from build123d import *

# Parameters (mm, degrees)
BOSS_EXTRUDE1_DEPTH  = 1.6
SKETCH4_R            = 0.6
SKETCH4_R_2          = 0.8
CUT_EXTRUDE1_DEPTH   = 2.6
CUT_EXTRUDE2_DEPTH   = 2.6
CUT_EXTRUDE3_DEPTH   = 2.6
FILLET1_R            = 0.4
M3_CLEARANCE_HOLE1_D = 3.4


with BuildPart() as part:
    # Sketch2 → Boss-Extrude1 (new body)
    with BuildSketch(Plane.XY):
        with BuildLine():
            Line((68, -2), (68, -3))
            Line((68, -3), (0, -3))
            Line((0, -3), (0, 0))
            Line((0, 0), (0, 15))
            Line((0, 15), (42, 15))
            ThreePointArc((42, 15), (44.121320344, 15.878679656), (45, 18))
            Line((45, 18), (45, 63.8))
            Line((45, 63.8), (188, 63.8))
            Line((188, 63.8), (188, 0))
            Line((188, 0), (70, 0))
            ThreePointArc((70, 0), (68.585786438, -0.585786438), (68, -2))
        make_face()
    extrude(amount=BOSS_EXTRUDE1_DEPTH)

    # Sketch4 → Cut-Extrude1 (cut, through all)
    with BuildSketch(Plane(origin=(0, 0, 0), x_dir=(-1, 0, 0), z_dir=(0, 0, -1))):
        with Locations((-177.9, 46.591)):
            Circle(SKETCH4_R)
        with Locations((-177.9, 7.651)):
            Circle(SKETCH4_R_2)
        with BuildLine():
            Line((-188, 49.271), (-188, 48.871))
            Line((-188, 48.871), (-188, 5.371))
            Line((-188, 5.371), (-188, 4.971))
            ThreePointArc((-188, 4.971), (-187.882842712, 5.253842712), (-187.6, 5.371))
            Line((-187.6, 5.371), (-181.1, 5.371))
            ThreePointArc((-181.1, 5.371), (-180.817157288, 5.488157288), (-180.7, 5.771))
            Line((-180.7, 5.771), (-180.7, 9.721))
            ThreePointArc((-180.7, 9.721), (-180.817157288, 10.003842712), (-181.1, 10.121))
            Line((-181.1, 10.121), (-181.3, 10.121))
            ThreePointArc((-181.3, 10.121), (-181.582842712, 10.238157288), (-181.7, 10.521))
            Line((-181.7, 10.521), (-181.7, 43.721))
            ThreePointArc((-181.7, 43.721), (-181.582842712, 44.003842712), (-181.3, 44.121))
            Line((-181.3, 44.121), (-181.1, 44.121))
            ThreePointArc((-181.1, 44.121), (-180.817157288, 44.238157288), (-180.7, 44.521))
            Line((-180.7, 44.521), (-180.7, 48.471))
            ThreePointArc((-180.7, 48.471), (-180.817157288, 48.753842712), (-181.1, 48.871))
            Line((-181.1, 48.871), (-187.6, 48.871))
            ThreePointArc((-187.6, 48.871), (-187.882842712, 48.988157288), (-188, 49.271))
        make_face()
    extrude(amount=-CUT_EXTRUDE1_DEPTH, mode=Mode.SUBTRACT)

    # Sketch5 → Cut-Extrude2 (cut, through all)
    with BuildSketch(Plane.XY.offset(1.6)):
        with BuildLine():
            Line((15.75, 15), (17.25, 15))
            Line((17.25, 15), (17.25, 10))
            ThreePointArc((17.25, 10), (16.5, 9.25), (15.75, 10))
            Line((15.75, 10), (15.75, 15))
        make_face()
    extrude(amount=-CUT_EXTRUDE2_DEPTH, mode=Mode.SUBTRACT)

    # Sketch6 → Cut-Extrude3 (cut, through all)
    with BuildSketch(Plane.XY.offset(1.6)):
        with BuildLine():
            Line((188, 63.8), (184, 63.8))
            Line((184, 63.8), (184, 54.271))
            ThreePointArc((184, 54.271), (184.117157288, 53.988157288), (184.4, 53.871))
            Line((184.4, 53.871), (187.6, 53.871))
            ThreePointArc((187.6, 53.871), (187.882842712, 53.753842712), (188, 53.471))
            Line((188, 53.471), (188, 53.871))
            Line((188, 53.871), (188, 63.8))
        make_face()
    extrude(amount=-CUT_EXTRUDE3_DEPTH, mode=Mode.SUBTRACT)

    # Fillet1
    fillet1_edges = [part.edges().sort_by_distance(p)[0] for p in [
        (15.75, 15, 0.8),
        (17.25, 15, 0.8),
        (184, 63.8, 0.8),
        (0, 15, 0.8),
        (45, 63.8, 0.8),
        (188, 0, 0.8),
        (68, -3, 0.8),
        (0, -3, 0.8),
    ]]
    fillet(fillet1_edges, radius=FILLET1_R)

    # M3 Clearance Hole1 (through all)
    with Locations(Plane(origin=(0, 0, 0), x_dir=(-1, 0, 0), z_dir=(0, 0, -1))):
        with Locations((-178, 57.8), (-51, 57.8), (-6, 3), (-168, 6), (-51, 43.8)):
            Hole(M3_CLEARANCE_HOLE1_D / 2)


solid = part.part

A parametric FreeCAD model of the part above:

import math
import FreeCAD as App
import Part
import Sketcher
Q = App.Units.Quantity


def edges_at(feature, points):
    """Names of the edges that pass closest to the given points."""
    edges = feature.Shape.Edges
    near = lambda p: min(range(len(edges)), key=lambda i: edges[i].distToShape(Part.Vertex(*p))[0])
    return sorted({f"Edge{near(p) + 1}" for p in points})

doc = App.newDocument("Part")
body = doc.addObject("PartDesign::Body", "Body")

sketch1 = body.newObject("Sketcher::SketchObject", "Sketch")
sketch1.AttachmentSupport = (doc.getObject("XY_Plane"), [""])
sketch1.MapMode = "FlatFace"
sketch1.addGeometry(Part.LineSegment(App.Vector(68, -3, 0), App.Vector(68, -2, 0)), False)
sketch1.addGeometry(Part.ArcOfCircle(Part.Circle(App.Vector(70, -2, 0), App.Vector(0, 0, 1), 2), math.radians(90), math.radians(180)), False)
sketch1.addGeometry(Part.LineSegment(App.Vector(70, 0, 0), App.Vector(188, 0, 0)), False)
sketch1.addGeometry(Part.LineSegment(App.Vector(188, 0, 0), App.Vector(188, 63.8, 0)), False)
sketch1.addGeometry(Part.LineSegment(App.Vector(188, 63.8, 0), App.Vector(45, 63.8, 0)), False)
sketch1.addGeometry(Part.LineSegment(App.Vector(45, 63.8, 0), App.Vector(45, 18, 0)), False)
sketch1.addGeometry(Part.ArcOfCircle(Part.Circle(App.Vector(42, 18, 0), App.Vector(0, 0, 1), 3), math.radians(-90), math.radians(0)), False)
sketch1.addGeometry(Part.LineSegment(App.Vector(42, 15, 0), App.Vector(0, 15, 0)), False)
sketch1.addGeometry(Part.LineSegment(App.Vector(0, 15, 0), App.Vector(0, -3, 0)), False)
sketch1.addGeometry(Part.LineSegment(App.Vector(0, -3, 0), App.Vector(68, -3, 0)), False)
sketch1.addConstraint(Sketcher.Constraint("Tangent", 0, 2, 1, 2))
sketch1.addConstraint(Sketcher.Constraint("Tangent", 1, 1, 2, 1))
sketch1.addConstraint(Sketcher.Constraint("Coincident", 2, 2, 3, 1))
sketch1.addConstraint(Sketcher.Constraint("Coincident", 3, 2, 4, 1))
sketch1.addConstraint(Sketcher.Constraint("Coincident", 4, 2, 5, 1))
sketch1.addConstraint(Sketcher.Constraint("Tangent", 5, 2, 6, 2))
sketch1.addConstraint(Sketcher.Constraint("Tangent", 6, 1, 7, 1))
sketch1.addConstraint(Sketcher.Constraint("Coincident", 7, 2, 8, 1))
sketch1.addConstraint(Sketcher.Constraint("Coincident", 8, 2, 9, 1))
sketch1.addConstraint(Sketcher.Constraint("Coincident", 9, 2, 0, 1))
sketch1.addConstraint(Sketcher.Constraint("Vertical", 0))
sketch1.addConstraint(Sketcher.Constraint("Horizontal", 2))
sketch1.addConstraint(Sketcher.Constraint("Vertical", 3))
sketch1.addConstraint(Sketcher.Constraint("Horizontal", 4))
sketch1.addConstraint(Sketcher.Constraint("Vertical", 5))
sketch1.addConstraint(Sketcher.Constraint("Horizontal", 7))
sketch1.addConstraint(Sketcher.Constraint("Vertical", 8))
sketch1.addConstraint(Sketcher.Constraint("Horizontal", 9))
sketch1.addConstraint(Sketcher.Constraint("PointOnObject", 1, 1, -1))
sketch1.addConstraint(Sketcher.Constraint("PointOnObject", 7, 2, -2))
sketch1.addConstraint(Sketcher.Constraint("Radius", 1, Q("2 mm")))
sketch1.addConstraint(Sketcher.Constraint("Radius", 6, Q("3 mm")))
sketch1.addConstraint(Sketcher.Constraint("DistanceX", 2, 1, 2, 2, Q("118 mm")))
sketch1.addConstraint(Sketcher.Constraint("DistanceX", 4, 2, 4, 1, Q("143 mm")))
sketch1.addConstraint(Sketcher.Constraint("DistanceX", 7, 2, 7, 1, Q("42 mm")))
sketch1.addConstraint(Sketcher.Constraint("DistanceY", 0, 1, 0, 2, Q("1 mm")))
sketch1.addConstraint(Sketcher.Constraint("DistanceY", 8, 2, 8, 1, Q("18 mm")))
sketch1.addConstraint(Sketcher.Constraint("DistanceY", 3, 1, 3, 2, Q("63.8 mm")))
pad1 = body.newObject("PartDesign::Pad", "Pad")
pad1.Profile = sketch1
pad1.Length = 1.6

sketch2 = body.newObject("Sketcher::SketchObject", "Sketch001")
sketch2.AttachmentSupport = (doc.getObject("XY_Plane"), [""])
sketch2.MapMode = "FlatFace"
sketch2.addGeometry(Part.Circle(App.Vector(177.9, 46.59, 0), App.Vector(0, 0, 1), 0.6), False)
sketch2.addGeometry(Part.Circle(App.Vector(177.9, 7.65, 0), App.Vector(0, 0, 1), 0.8), False)
sketch2.addGeometry(Part.LineSegment(App.Vector(188, 49.27, 0), App.Vector(188, 4.97, 0)), False)
sketch2.addGeometry(Part.ArcOfCircle(Part.Circle(App.Vector(187.6, 4.97, 0), App.Vector(0, 0, 1), 0.4), math.radians(0), math.radians(90)), False)
sketch2.addGeometry(Part.LineSegment(App.Vector(187.6, 5.37, 0), App.Vector(181.1, 5.37, 0)), False)
sketch2.addGeometry(Part.ArcOfCircle(Part.Circle(App.Vector(181.1, 5.77, 0), App.Vector(0, 0, 1), 0.4), math.radians(-180), math.radians(-90)), False)
sketch2.addGeometry(Part.LineSegment(App.Vector(180.7, 5.77, 0), App.Vector(180.7, 9.72, 0)), False)
sketch2.addGeometry(Part.ArcOfCircle(Part.Circle(App.Vector(181.1, 9.72, 0), App.Vector(0, 0, 1), 0.4), math.radians(90), math.radians(180)), False)
sketch2.addGeometry(Part.LineSegment(App.Vector(181.1, 10.12, 0), App.Vector(181.3, 10.12, 0)), False)
sketch2.addGeometry(Part.ArcOfCircle(Part.Circle(App.Vector(181.3, 10.52, 0), App.Vector(0, 0, 1), 0.4), math.radians(-90), math.radians(0)), False)
sketch2.addGeometry(Part.LineSegment(App.Vector(181.7, 10.52, 0), App.Vector(181.7, 43.72, 0)), False)
sketch2.addGeometry(Part.ArcOfCircle(Part.Circle(App.Vector(181.3, 43.72, 0), App.Vector(0, 0, 1), 0.4), math.radians(0), math.radians(90)), False)
sketch2.addGeometry(Part.LineSegment(App.Vector(181.3, 44.12, 0), App.Vector(181.1, 44.12, 0)), False)
sketch2.addGeometry(Part.ArcOfCircle(Part.Circle(App.Vector(181.1, 44.52, 0), App.Vector(0, 0, 1), 0.4), math.radians(-180), math.radians(-90)), False)
sketch2.addGeometry(Part.LineSegment(App.Vector(180.7, 44.52, 0), App.Vector(180.7, 48.47, 0)), False)
sketch2.addGeometry(Part.ArcOfCircle(Part.Circle(App.Vector(181.1, 48.47, 0), App.Vector(0, 0, 1), 0.4), math.radians(90), math.radians(180)), False)
sketch2.addGeometry(Part.LineSegment(App.Vector(181.1, 48.87, 0), App.Vector(187.6, 48.87, 0)), False)
sketch2.addGeometry(Part.ArcOfCircle(Part.Circle(App.Vector(187.6, 49.27, 0), App.Vector(0, 0, 1), 0.4), math.radians(-90), math.radians(0)), False)
sketch2.addConstraint(Sketcher.Constraint("Tangent", 2, 2, 3, 1))
sketch2.addConstraint(Sketcher.Constraint("Tangent", 3, 2, 4, 1))
sketch2.addConstraint(Sketcher.Constraint("Tangent", 4, 2, 5, 2))
sketch2.addConstraint(Sketcher.Constraint("Tangent", 5, 1, 6, 1))
sketch2.addConstraint(Sketcher.Constraint("Tangent", 6, 2, 7, 2))
sketch2.addConstraint(Sketcher.Constraint("Tangent", 7, 1, 8, 1))
sketch2.addConstraint(Sketcher.Constraint("Tangent", 8, 2, 9, 1))
sketch2.addConstraint(Sketcher.Constraint("Tangent", 9, 2, 10, 1))
sketch2.addConstraint(Sketcher.Constraint("Tangent", 10, 2, 11, 1))
sketch2.addConstraint(Sketcher.Constraint("Tangent", 11, 2, 12, 1))
sketch2.addConstraint(Sketcher.Constraint("Tangent", 12, 2, 13, 2))
sketch2.addConstraint(Sketcher.Constraint("Tangent", 13, 1, 14, 1))
sketch2.addConstraint(Sketcher.Constraint("Tangent", 14, 2, 15, 2))
sketch2.addConstraint(Sketcher.Constraint("Tangent", 15, 1, 16, 1))
sketch2.addConstraint(Sketcher.Constraint("Tangent", 16, 2, 17, 1))
sketch2.addConstraint(Sketcher.Constraint("Tangent", 17, 2, 2, 1))
sketch2.addConstraint(Sketcher.Constraint("Vertical", 2))
sketch2.addConstraint(Sketcher.Constraint("Horizontal", 4))
sketch2.addConstraint(Sketcher.Constraint("Vertical", 6))
sketch2.addConstraint(Sketcher.Constraint("Horizontal", 8))
sketch2.addConstraint(Sketcher.Constraint("Vertical", 10))
sketch2.addConstraint(Sketcher.Constraint("Horizontal", 12))
sketch2.addConstraint(Sketcher.Constraint("Vertical", 14))
sketch2.addConstraint(Sketcher.Constraint("Horizontal", 16))
sketch2.addConstraint(Sketcher.Constraint("Equal", 3, 5))
sketch2.addConstraint(Sketcher.Constraint("Equal", 5, 7))
sketch2.addConstraint(Sketcher.Constraint("Equal", 7, 9))
sketch2.addConstraint(Sketcher.Constraint("Equal", 9, 11))
sketch2.addConstraint(Sketcher.Constraint("Equal", 11, 13))
sketch2.addConstraint(Sketcher.Constraint("Equal", 13, 15))
sketch2.addConstraint(Sketcher.Constraint("Equal", 15, 17))
sketch2.addConstraint(Sketcher.Constraint("Vertical", 0, 3, 1, 3))
sketch2.addConstraint(Sketcher.Constraint("Vertical", 7, 3, 13, 3))
sketch2.addConstraint(Sketcher.Constraint("Equal", 6, 14))
sketch2.addConstraint(Sketcher.Constraint("Diameter", 0, Q("1.2 mm")))
sketch2.addConstraint(Sketcher.Constraint("Diameter", 1, Q("1.6 mm")))
sketch2.addConstraint(Sketcher.Constraint("Radius", 3, Q("0.4 mm")))
sketch2.addConstraint(Sketcher.Constraint("DistanceX", 4, 2, 4, 1, Q("6.5 mm")))
sketch2.addConstraint(Sketcher.Constraint("DistanceX", 8, 1, 8, 2, Q("0.2 mm")))
sketch2.addConstraint(Sketcher.Constraint("DistanceY", 2, 2, 2, 1, Q("44.3 mm")))
sketch2.addConstraint(Sketcher.Constraint("DistanceY", 10, 1, 10, 2, Q("33.2 mm")))
sketch2.addConstraint(Sketcher.Constraint("DistanceX", -1, 1, 2, 2, Q("188 mm")))
sketch2.addConstraint(Sketcher.Constraint("DistanceX", -1, 1, 0, 3, Q("177.9 mm")))
sketch2.addConstraint(Sketcher.Constraint("DistanceY", 1, 3, 0, 3, Q("38.94 mm")))
sketch2.addConstraint(Sketcher.Constraint("DistanceY", 3, 3, 1, 3, Q("2.68 mm")))
sketch2.addConstraint(Sketcher.Constraint("DistanceY", -1, 1, 0, 3, Q("46.591 mm")))
pocket1 = body.newObject("PartDesign::Pocket", "Pocket")
pocket1.Profile = sketch2
pocket1.Type = "ThroughAll"
pocket1.Reversed = True

sketch3 = body.newObject("Sketcher::SketchObject", "Sketch002")
sketch3.AttachmentSupport = (doc.getObject("XY_Plane"), [""])
sketch3.MapMode = "FlatFace"
sketch3.AttachmentOffset = App.Placement(App.Vector(0, 0, 1.6), App.Rotation())
sketch3.addGeometry(Part.LineSegment(App.Vector(17.2, 15, 0), App.Vector(15.8, 15, 0)), False)
sketch3.addGeometry(Part.LineSegment(App.Vector(15.8, 15, 0), App.Vector(15.8, 10, 0)), False)
sketch3.addGeometry(Part.ArcOfCircle(Part.Circle(App.Vector(16.5, 10, 0), App.Vector(0, 0, 1), 0.8), math.radians(180), math.radians(360)), False)
sketch3.addGeometry(Part.LineSegment(App.Vector(17.2, 10, 0), App.Vector(17.2, 15, 0)), False)
sketch3.addConstraint(Sketcher.Constraint("Coincident", 0, 2, 1, 1))
sketch3.addConstraint(Sketcher.Constraint("Tangent", 1, 2, 2, 1))
sketch3.addConstraint(Sketcher.Constraint("Tangent", 2, 2, 3, 1))
sketch3.addConstraint(Sketcher.Constraint("Coincident", 3, 2, 0, 1))
sketch3.addConstraint(Sketcher.Constraint("Horizontal", 0))
sketch3.addConstraint(Sketcher.Constraint("Vertical", 1))
sketch3.addConstraint(Sketcher.Constraint("Vertical", 3))
sketch3.addConstraint(Sketcher.Constraint("DistanceY", 1, 2, 1, 1, Q("5 mm")))
sketch3.addConstraint(Sketcher.Constraint("Radius", 2, Q("0.75 mm")))
sketch3.addConstraint(Sketcher.Constraint("DistanceY", -1, 1, 2, 3, Q("10 mm")))
sketch3.addConstraint(Sketcher.Constraint("DistanceX", -1, 1, 2, 3, Q("16.5 mm")))
pocket2 = body.newObject("PartDesign::Pocket", "Pocket001")
pocket2.Profile = sketch3
pocket2.Type = "ThroughAll"

sketch4 = body.newObject("Sketcher::SketchObject", "Sketch003")
sketch4.AttachmentSupport = (doc.getObject("XY_Plane"), [""])
sketch4.MapMode = "FlatFace"
sketch4.AttachmentOffset = App.Placement(App.Vector(0, 0, 1.6), App.Rotation())
sketch4.addGeometry(Part.LineSegment(App.Vector(188, 63.8, 0), App.Vector(184, 63.8, 0)), False)
sketch4.addGeometry(Part.LineSegment(App.Vector(184, 63.8, 0), App.Vector(184, 54.27, 0)), False)
sketch4.addGeometry(Part.ArcOfCircle(Part.Circle(App.Vector(184.4, 54.27, 0), App.Vector(0, 0, 1), 0.4), math.radians(-180), math.radians(-90)), False)
sketch4.addGeometry(Part.LineSegment(App.Vector(184.4, 53.87, 0), App.Vector(187.6, 53.87, 0)), False)
sketch4.addGeometry(Part.ArcOfCircle(Part.Circle(App.Vector(187.6, 53.47, 0), App.Vector(0, 0, 1), 0.4), math.radians(0), math.radians(90)), False)
sketch4.addGeometry(Part.LineSegment(App.Vector(188, 53.47, 0), App.Vector(188, 63.8, 0)), False)
sketch4.addConstraint(Sketcher.Constraint("Coincident", 0, 2, 1, 1))
sketch4.addConstraint(Sketcher.Constraint("Tangent", 1, 2, 2, 1))
sketch4.addConstraint(Sketcher.Constraint("Tangent", 2, 2, 3, 1))
sketch4.addConstraint(Sketcher.Constraint("Tangent", 3, 2, 4, 2))
sketch4.addConstraint(Sketcher.Constraint("Tangent", 4, 1, 5, 1))
sketch4.addConstraint(Sketcher.Constraint("Coincident", 5, 2, 0, 1))
sketch4.addConstraint(Sketcher.Constraint("Horizontal", 0))
sketch4.addConstraint(Sketcher.Constraint("Vertical", 1))
sketch4.addConstraint(Sketcher.Constraint("Horizontal", 3))
sketch4.addConstraint(Sketcher.Constraint("Vertical", 5))
sketch4.addConstraint(Sketcher.Constraint("Equal", 2, 4))
sketch4.addConstraint(Sketcher.Constraint("Radius", 2, Q("0.4 mm")))
sketch4.addConstraint(Sketcher.Constraint("DistanceX", 0, 2, 0, 1, Q("4 mm")))
sketch4.addConstraint(Sketcher.Constraint("DistanceX", -1, 1, 0, 2, Q("184 mm")))
sketch4.addConstraint(Sketcher.Constraint("DistanceY", -1, 1, 0, 2, Q("63.8 mm")))
sketch4.addConstraint(Sketcher.Constraint("DistanceY", 1, 2, 1, 1, Q("9.529 mm")))
pocket3 = body.newObject("PartDesign::Pocket", "Pocket002")
pocket3.Profile = sketch4
pocket3.Type = "ThroughAll"
doc.recompute()

fillet = body.newObject("PartDesign::Fillet", "Fillet")
fillet.Base = (pocket3, edges_at(pocket3, [
    (15.75, 15, 0.8),
    (17.25, 15, 0.8),
    (184, 63.8, 0.8),
    (0, 15, 0.8),
    (45, 63.8, 0.8),
    (188, 0, 0.8),
    (68, -3, 0.8),
    (0, -3, 0.8),
]))
fillet.Radius = 0.4

sketch5 = body.newObject("Sketcher::SketchObject", "Sketch004")
sketch5.AttachmentSupport = (doc.getObject("XY_Plane"), [""])
sketch5.MapMode = "FlatFace"
sketch5.addGeometry(Part.Circle(App.Vector(178, 57.8, 0), App.Vector(0, 0, 1), 1.7), False)
sketch5.addGeometry(Part.Circle(App.Vector(51, 57.8, 0), App.Vector(0, 0, 1), 1.7), False)
sketch5.addGeometry(Part.Circle(App.Vector(6, 3, 0), App.Vector(0, 0, 1), 1.7), False)
sketch5.addGeometry(Part.Circle(App.Vector(168, 6, 0), App.Vector(0, 0, 1), 1.7), False)
sketch5.addGeometry(Part.Circle(App.Vector(51, 43.8, 0), App.Vector(0, 0, 1), 1.7), False)
sketch5.addConstraint(Sketcher.Constraint("Equal", 0, 1))
sketch5.addConstraint(Sketcher.Constraint("Equal", 1, 2))
sketch5.addConstraint(Sketcher.Constraint("Equal", 2, 3))
sketch5.addConstraint(Sketcher.Constraint("Equal", 3, 4))
sketch5.addConstraint(Sketcher.Constraint("Horizontal", 0, 3, 1, 3))
sketch5.addConstraint(Sketcher.Constraint("Vertical", 1, 3, 4, 3))
sketch5.addConstraint(Sketcher.Constraint("Diameter", 0, Q("3.4 mm")))
sketch5.addConstraint(Sketcher.Constraint("DistanceX", -1, 1, 0, 3, Q("178 mm")))
sketch5.addConstraint(Sketcher.Constraint("DistanceX", -1, 1, 1, 3, Q("51 mm")))
sketch5.addConstraint(Sketcher.Constraint("DistanceX", -1, 1, 2, 3, Q("6 mm")))
sketch5.addConstraint(Sketcher.Constraint("DistanceY", -1, 1, 2, 3, Q("3 mm")))
sketch5.addConstraint(Sketcher.Constraint("DistanceX", -1, 1, 3, 3, Q("168 mm")))
sketch5.addConstraint(Sketcher.Constraint("DistanceY", -1, 1, 3, 3, Q("6 mm")))
sketch5.addConstraint(Sketcher.Constraint("DistanceY", 4, 3, 1, 3, Q("14 mm")))
sketch5.addConstraint(Sketcher.Constraint("DistanceY", -1, 1, 0, 3, Q("57.8 mm")))
doc.recompute()
hole = body.newObject("PartDesign::Hole", "Hole")
hole.Profile = sketch5
hole.ThreadType = "None"
hole.Diameter = 3.4
hole.DepthType = "ThroughAll"
hole.Reversed = True

doc.recompute()
